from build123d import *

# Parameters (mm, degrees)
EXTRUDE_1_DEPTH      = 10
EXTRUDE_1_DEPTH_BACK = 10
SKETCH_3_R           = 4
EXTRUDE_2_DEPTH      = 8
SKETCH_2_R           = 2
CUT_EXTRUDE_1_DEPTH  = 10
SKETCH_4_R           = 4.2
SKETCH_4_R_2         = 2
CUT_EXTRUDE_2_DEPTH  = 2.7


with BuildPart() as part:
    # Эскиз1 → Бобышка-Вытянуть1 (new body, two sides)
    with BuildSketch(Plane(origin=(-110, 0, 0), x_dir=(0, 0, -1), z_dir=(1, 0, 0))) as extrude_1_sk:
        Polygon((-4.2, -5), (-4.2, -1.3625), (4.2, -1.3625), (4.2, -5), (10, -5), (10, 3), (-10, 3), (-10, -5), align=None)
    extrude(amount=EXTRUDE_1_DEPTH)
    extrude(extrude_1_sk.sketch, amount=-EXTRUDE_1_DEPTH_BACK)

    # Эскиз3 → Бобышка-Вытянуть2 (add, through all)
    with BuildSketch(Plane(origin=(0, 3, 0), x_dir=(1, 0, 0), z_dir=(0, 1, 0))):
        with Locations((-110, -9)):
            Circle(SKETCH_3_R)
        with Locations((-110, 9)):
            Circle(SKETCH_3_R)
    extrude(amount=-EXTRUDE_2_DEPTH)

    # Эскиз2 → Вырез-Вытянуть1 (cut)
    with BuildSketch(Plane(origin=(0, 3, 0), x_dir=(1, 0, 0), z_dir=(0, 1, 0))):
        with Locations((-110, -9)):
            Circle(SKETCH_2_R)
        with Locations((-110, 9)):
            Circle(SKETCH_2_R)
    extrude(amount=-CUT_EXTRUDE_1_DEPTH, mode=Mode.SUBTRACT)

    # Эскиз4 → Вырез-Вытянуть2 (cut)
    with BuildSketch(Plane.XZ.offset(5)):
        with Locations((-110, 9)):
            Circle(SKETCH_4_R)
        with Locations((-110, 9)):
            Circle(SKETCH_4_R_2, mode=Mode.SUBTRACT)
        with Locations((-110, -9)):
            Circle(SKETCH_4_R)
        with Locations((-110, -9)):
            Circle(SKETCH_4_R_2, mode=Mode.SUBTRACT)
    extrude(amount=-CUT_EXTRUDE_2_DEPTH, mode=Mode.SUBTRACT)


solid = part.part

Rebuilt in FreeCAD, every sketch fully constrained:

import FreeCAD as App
import Part
import Sketcher

doc = App.newDocument("Part")
body = doc.addObject("PartDesign::Body", "Body")

sketch1 = body.newObject("Sketcher::SketchObject", "Sketch")
sketch1.AttachmentSupport = (doc.getObject("YZ_Plane"), [""])
sketch1.MapMode = "FlatFace"
sketch1.AttachmentOffset = App.Placement(App.Vector(0, 0, -110), App.Rotation())
sketch1.addGeometry([
    Part.LineSegment(App.Vector(-5, 4.2, 0), App.Vector(-1.4, 4.2, 0)),
    Part.LineSegment(App.Vector(-1.4, 4.2, 0), App.Vector(-1.4, -4.2, 0)),
    Part.LineSegment(App.Vector(-1.4, -4.2, 0), App.Vector(-5, -4.2, 0)),
    Part.LineSegment(App.Vector(-5, -4.2, 0), App.Vector(-5, -10, 0)),
    Part.LineSegment(App.Vector(-5, -10, 0), App.Vector(3, -10, 0)),
    Part.LineSegment(App.Vector(3, -10, 0), App.Vector(3, 10, 0)),
    Part.LineSegment(App.Vector(3, 10, 0), App.Vector(-5, 10, 0)),
    Part.LineSegment(App.Vector(-5, 10, 0), App.Vector(-5, 4.2, 0)),
], False)
sketch1.addConstraint([
    Sketcher.Constraint("Coincident", 0, 2, 1, 1),
    Sketcher.Constraint("Coincident", 1, 2, 2, 1),
    Sketcher.Constraint("Coincident", 2, 2, 3, 1),
    Sketcher.Constraint("Coincident", 3, 2, 4, 1),
    Sketcher.Constraint("Coincident", 4, 2, 5, 1),
    Sketcher.Constraint("Coincident", 5, 2, 6, 1),
    Sketcher.Constraint("Coincident", 6, 2, 7, 1),
    Sketcher.Constraint("Coincident", 7, 2, 0, 1),
    Sketcher.Constraint("Horizontal", 0),
    Sketcher.Constraint("Vertical", 1),
    Sketcher.Constraint("Horizontal", 2),
    Sketcher.Constraint("Vertical", 3),
    Sketcher.Constraint("Horizontal", 4),
    Sketcher.Constraint("Vertical", 5),
    Sketcher.Constraint("Horizontal", 6),
    Sketcher.Constraint("Vertical", 7),
    Sketcher.Constraint("Symmetric", 3, 2, 6, 2, -1),
    Sketcher.Constraint("Equal", 3, 7),
    Sketcher.Constraint("DistanceX", 4, 1, 4, 2, 8.0),
    Sketcher.Constraint("DistanceY", 5, 1, 5, 2, 20.0),
    Sketcher.Constraint("DistanceY", 1, 2, 1, 1, 8.4),
    Sketcher.Constraint("DistanceX", 2, 2, -1, 1, 5.0),
    Sketcher.Constraint("DistanceX", 0, 1, 0, 2, 3.6375),
])
pad1 = body.newObject("PartDesign::Pad", "Pad")
pad1.Profile = sketch1
pad1.Type = "TwoLengths"
pad1.Length = 10
pad1.Length2 = 10

sketch2 = body.newObject("Sketcher::SketchObject", "Sketch001")
sketch2.AttachmentSupport = (doc.getObject("XZ_Plane"), [""])
sketch2.MapMode = "FlatFace"
sketch2.AttachmentOffset = App.Placement(App.Vector(0, 0, -3), App.Rotation())
sketch2.addGeometry([
    Part.Circle(App.Vector(-110, 9, 0), App.Vector(0, 0, 1), 4),
    Part.Circle(App.Vector(-110, -9, 0), App.Vector(0, 0, 1), 4),
], False)
sketch2.addConstraint([
    Sketcher.Constraint("Equal", 0, 1),
    Sketcher.Constraint("Symmetric", 0, 3, 1, 3, -1),
    Sketcher.Constraint("Diameter", 0, 8.0),
    Sketcher.Constraint("DistanceX", 0, 3, -1, 1, 110.0),
    Sketcher.Constraint("DistanceY", -1, 1, 0, 3, 9.0),
])
pad2 = body.newObject("PartDesign::Pad", "Pad001")
pad2.Profile = sketch2
pad2.Length = 8

sketch3 = body.newObject("Sketcher::SketchObject", "Sketch002")
sketch3.AttachmentSupport = (doc.getObject("XZ_Plane"), [""])
sketch3.MapMode = "FlatFace"
sketch3.AttachmentOffset = App.Placement(App.Vector(0, 0, -3), App.Rotation())
sketch3.addGeometry([
    Part.Circle(App.Vector(-110, 9, 0), App.Vector(0, 0, 1), 2),
    Part.Circle(App.Vector(-110, -9, 0), App.Vector(0, 0, 1), 2),
], False)
sketch3.addConstraint([
    Sketcher.Constraint("Equal", 0, 1),
    Sketcher.Constraint("Symmetric", 0, 3, 1, 3, -1),
    Sketcher.Constraint("Diameter", 0, 4.0),
    Sketcher.Constraint("DistanceX", 0, 3, -1, 1, 110.0),
    Sketcher.Constraint("DistanceY", -1, 1, 0, 3, 9.0),
])
pocket1 = body.newObject("PartDesign::Pocket", "Pocket")
pocket1.Profile = sketch3
pocket1.Length = 10
pocket1.Reversed = True

sketch4 = body.newObject("Sketcher::SketchObject", "Sketch003")
sketch4.AttachmentSupport = (doc.getObject("XZ_Plane"), [""])
sketch4.MapMode = "FlatFace"
sketch4.AttachmentOffset = App.Placement(App.Vector(0, 0, 5), App.Rotation())
sketch4.addGeometry([
    Part.Circle(App.Vector(-110, 9, 0), App.Vector(0, 0, 1), 4.2),
    Part.Circle(App.Vector(-110, 9, 0), App.Vector(0, 0, 1), 2),
    Part.Circle(App.Vector(-110, -9, 0), App.Vector(0, 0, 1), 4.2),
    Part.Circle(App.Vector(-110, -9, 0), App.Vector(0, 0, 1), 2),
], False)
sketch4.addConstraint([
    Sketcher.Constraint("Coincident", 1, 3, 0, 3),
    Sketcher.Constraint("Coincident", 3, 3, 2, 3),
    Sketcher.Constraint("Equal", 0, 2),
    Sketcher.Constraint("Equal", 1, 3),
    Sketcher.Constraint("Symmetric", 0, 3, 2, 3, -1),
    Sketcher.Constraint("Diameter", 1, 4.0),
    Sketcher.Constraint("Diameter", 0, 8.4),
    Sketcher.Constraint("DistanceX", 0, 3, -1, 1, 110.0),
    Sketcher.Constraint("DistanceY", -1, 1, 0, 3, 9.0),
])
pocket2 = body.newObject("PartDesign::Pocket", "Pocket001")
pocket2.Profile = sketch4
pocket2.Length = 2.7

doc.recompute()
